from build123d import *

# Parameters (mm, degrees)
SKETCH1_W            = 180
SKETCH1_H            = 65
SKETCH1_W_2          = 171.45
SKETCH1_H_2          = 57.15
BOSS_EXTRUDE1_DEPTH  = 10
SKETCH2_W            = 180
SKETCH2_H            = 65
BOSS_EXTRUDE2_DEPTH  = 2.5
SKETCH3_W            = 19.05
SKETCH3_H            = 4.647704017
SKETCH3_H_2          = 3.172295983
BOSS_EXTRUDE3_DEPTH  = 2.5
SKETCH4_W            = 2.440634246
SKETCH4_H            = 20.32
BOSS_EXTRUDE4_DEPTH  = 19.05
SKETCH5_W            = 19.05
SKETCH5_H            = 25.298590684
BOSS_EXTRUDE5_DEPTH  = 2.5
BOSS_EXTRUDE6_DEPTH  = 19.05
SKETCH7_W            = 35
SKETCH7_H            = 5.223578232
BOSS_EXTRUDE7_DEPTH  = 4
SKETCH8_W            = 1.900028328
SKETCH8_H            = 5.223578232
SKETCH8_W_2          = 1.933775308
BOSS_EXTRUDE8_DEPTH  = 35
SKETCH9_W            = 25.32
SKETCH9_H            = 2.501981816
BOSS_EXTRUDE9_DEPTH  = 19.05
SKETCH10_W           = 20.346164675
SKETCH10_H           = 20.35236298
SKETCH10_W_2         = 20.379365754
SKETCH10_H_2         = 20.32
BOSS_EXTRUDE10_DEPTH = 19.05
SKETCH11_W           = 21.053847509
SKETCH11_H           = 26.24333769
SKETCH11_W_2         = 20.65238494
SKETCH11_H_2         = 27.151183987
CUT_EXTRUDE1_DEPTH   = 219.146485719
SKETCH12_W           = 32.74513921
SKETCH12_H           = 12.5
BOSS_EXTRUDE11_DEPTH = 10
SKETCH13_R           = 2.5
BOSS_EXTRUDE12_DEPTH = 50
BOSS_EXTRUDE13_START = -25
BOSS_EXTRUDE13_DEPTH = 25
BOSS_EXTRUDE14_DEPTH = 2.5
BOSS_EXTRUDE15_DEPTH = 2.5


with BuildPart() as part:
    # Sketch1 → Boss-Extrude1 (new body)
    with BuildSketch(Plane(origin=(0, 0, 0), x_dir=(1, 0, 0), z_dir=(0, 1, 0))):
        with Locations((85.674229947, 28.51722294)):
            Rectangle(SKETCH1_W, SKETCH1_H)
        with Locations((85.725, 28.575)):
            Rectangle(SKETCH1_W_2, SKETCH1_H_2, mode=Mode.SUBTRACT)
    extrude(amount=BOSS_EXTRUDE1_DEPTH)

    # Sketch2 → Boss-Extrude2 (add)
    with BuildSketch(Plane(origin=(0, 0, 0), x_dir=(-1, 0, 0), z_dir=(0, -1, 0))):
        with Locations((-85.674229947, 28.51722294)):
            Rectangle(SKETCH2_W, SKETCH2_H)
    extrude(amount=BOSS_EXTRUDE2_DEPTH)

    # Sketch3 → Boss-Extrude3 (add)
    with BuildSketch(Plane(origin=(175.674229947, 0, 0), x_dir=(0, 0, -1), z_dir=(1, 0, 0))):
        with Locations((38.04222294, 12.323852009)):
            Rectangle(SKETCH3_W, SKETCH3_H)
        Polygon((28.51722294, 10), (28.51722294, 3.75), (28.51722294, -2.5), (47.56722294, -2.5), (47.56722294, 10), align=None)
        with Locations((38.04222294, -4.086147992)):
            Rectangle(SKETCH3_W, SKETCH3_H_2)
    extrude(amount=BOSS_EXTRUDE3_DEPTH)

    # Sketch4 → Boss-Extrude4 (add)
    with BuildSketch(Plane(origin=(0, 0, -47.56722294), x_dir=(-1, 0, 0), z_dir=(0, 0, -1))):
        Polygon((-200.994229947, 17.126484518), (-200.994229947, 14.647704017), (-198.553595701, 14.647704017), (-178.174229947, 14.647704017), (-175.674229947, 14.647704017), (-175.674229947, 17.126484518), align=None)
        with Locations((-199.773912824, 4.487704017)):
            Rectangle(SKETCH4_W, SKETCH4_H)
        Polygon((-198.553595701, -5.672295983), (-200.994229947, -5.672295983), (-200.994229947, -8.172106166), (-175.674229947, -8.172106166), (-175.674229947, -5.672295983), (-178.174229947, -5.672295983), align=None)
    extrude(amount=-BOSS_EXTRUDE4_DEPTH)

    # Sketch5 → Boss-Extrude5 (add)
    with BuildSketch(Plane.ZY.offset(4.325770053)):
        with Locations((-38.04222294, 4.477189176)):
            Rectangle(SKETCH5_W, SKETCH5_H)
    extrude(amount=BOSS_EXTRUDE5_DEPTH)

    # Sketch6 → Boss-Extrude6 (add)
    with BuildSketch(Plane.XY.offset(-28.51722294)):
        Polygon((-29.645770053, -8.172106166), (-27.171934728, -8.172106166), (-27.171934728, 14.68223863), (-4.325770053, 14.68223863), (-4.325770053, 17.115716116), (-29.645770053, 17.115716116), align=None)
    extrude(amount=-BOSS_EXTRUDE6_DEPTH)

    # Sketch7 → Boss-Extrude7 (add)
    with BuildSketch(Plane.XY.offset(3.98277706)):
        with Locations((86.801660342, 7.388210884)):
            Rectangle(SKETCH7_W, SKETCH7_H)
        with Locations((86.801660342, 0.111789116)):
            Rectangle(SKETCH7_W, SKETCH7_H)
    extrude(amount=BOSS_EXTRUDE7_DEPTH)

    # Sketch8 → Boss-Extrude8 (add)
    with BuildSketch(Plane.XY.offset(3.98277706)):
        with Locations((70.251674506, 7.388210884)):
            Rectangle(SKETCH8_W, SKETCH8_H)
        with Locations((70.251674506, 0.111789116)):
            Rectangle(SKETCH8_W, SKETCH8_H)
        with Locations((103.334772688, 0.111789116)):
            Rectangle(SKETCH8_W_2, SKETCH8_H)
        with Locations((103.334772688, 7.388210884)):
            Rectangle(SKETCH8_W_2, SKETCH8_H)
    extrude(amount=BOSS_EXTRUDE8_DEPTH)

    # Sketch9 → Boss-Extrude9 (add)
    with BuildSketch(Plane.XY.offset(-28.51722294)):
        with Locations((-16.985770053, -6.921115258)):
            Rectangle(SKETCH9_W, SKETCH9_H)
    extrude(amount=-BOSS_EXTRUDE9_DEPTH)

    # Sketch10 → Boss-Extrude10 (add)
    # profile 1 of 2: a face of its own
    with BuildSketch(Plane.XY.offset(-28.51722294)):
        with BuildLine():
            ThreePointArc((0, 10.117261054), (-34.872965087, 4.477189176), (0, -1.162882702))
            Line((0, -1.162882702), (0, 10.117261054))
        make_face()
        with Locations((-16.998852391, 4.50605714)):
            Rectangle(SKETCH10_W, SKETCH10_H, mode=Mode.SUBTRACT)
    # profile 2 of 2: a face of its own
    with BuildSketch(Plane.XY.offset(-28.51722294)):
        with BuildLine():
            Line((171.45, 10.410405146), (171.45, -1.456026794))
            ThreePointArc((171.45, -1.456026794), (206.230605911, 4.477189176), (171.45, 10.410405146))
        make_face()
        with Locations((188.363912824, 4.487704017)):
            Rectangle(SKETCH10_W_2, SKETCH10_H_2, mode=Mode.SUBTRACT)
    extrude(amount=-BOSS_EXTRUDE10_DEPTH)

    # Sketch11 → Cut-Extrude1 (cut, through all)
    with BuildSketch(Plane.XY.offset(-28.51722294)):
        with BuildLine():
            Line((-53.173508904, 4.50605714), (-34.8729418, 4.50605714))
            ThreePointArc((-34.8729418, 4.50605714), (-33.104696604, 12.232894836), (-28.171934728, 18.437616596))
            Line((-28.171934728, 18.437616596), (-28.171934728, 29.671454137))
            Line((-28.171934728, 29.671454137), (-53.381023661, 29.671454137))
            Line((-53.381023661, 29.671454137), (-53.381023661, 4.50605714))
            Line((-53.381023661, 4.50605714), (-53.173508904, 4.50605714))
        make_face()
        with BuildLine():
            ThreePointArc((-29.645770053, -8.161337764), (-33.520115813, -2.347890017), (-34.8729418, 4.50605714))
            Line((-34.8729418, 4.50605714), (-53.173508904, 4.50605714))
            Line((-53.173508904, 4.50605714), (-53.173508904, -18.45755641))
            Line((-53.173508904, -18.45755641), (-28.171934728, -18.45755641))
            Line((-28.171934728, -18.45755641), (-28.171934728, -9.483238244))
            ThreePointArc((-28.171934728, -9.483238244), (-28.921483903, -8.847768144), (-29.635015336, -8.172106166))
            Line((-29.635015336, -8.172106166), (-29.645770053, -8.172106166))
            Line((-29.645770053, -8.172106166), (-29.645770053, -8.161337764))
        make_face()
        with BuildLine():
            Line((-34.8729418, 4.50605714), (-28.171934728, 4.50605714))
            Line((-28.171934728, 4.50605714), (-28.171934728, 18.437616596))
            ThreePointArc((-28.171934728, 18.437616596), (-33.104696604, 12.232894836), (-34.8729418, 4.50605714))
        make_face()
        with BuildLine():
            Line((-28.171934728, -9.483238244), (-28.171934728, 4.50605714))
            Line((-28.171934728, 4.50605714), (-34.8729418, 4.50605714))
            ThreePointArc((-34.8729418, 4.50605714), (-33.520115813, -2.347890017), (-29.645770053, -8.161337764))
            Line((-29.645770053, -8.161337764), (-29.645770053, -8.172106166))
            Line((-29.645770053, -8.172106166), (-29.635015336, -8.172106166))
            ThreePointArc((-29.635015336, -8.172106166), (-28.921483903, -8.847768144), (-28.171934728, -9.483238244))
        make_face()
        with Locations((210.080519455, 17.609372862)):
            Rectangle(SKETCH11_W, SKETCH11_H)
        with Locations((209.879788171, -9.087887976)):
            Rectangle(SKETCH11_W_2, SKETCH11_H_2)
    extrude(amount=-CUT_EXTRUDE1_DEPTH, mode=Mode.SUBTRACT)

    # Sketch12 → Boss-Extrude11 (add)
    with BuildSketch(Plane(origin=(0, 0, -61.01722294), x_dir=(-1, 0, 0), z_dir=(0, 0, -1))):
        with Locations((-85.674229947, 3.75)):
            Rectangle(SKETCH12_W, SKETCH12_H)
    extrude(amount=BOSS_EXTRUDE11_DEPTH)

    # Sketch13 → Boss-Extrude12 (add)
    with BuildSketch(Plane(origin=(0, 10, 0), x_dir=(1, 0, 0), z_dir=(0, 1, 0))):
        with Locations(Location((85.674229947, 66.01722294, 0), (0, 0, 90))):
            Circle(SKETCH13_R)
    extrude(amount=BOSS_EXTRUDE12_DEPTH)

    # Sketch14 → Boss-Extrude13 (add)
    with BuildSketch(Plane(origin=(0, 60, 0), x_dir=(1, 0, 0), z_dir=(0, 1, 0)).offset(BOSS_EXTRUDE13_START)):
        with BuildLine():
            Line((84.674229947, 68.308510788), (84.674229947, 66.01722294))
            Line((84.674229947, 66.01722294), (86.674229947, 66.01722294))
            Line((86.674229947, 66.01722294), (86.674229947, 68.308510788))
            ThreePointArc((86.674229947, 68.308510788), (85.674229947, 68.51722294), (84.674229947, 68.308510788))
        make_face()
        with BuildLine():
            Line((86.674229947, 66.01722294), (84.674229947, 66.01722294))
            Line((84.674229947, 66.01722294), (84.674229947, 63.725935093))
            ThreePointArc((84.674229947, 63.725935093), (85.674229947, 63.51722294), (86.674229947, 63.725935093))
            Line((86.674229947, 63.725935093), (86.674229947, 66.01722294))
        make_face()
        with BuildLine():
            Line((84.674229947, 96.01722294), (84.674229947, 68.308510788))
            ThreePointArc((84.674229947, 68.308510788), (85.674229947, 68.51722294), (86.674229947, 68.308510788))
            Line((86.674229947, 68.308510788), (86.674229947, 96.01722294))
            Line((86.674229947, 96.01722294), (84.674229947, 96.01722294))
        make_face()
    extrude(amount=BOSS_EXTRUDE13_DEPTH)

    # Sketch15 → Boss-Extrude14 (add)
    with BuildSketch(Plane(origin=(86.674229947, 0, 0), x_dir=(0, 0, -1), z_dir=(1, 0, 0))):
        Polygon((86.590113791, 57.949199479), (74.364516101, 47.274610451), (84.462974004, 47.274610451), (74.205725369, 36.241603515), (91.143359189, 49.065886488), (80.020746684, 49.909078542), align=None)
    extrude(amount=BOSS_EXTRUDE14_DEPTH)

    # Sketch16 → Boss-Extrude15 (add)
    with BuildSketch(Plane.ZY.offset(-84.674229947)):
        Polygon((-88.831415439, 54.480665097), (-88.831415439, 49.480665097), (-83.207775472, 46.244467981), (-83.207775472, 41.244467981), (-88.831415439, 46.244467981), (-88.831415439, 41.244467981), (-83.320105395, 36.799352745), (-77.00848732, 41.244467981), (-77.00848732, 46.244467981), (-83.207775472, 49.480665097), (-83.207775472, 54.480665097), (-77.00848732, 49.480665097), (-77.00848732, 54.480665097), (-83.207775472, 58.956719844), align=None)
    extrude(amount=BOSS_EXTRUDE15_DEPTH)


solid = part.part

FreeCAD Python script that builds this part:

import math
import FreeCAD as App
import Part
import Sketcher
Q = App.Units.Quantity

doc = App.newDocument("Part")
body = doc.addObject("PartDesign::Body", "Body")

# Sketch on XZ plane
sketch1 = body.newObject("Sketcher::SketchObject", "Sketch")
sketch1.AttachmentSupport = (doc.getObject("XZ_Plane"), [""])
sketch1.MapMode = "FlatFace"
sketch1.addGeometry([
    Part.LineSegment(App.Vector(-4, -61, 0), App.Vector(-4, 4, 0)),  # 0
    Part.LineSegment(App.Vector(-4, 4, 0), App.Vector(176, 4, 0)),  # 1
    Part.LineSegment(App.Vector(176, 4, 0), App.Vector(176, -61, 0)),  # 2
    Part.LineSegment(App.Vector(176, -61, 0), App.Vector(-4, -61, 0)),  # 3
    Part.LineSegment(App.Vector(171, 0, 0), App.Vector(0, 0, 0)),  # 4
    Part.LineSegment(App.Vector(0, 0, 0), App.Vector(0, -57, 0)),  # 5
    Part.LineSegment(App.Vector(0, -57, 0), App.Vector(171, -57, 0)),  # 6
    Part.LineSegment(App.Vector(171, -57, 0), App.Vector(171, 0, 0)),  # 7
], False)
sketch1.addConstraint([
    Sketcher.Constraint("Coincident", 0, 2, 1, 1),
    Sketcher.Constraint("Coincident", 1, 2, 2, 1),
    Sketcher.Constraint("Coincident", 2, 2, 3, 1),
    Sketcher.Constraint("Coincident", 3, 2, 0, 1),
    Sketcher.Constraint("Coincident", 4, 2, 5, 1),
    Sketcher.Constraint("Coincident", 5, 2, 6, 1),
    Sketcher.Constraint("Coincident", 6, 2, 7, 1),
    Sketcher.Constraint("Coincident", 7, 2, 4, 1),
    Sketcher.Constraint("Vertical", 0),
    Sketcher.Constraint("Horizontal", 1),
    Sketcher.Constraint("Vertical", 2),
    Sketcher.Constraint("Horizontal", 3),
    Sketcher.Constraint("Horizontal", 4),
    Sketcher.Constraint("Vertical", 5),
    Sketcher.Constraint("Horizontal", 6),
    Sketcher.Constraint("Vertical", 7),
    Sketcher.Constraint("Coincident", 4, 2, -1, 1),
    Sketcher.Constraint("DistanceX", 1, 1, 1, 2, Q("180 mm")),
    Sketcher.Constraint("DistanceY", 0, 1, 0, 2, Q("65 mm")),
    Sketcher.Constraint("DistanceX", 4, 2, 4, 1, Q("171.45 mm")),
    Sketcher.Constraint("DistanceY", 5, 2, 5, 1, Q("57.15 mm")),
    Sketcher.Constraint("DistanceX", 0, 2, -1, 1, Q("4.32577 mm")),
    Sketcher.Constraint("DistanceY", -1, 1, 0, 2, Q("3.982777 mm")),
])
pad1 = body.newObject("PartDesign::Pad", "Pad")
pad1.Profile = sketch1
pad1.Length = 10
pad1.Reversed = True

# Sketch on XZ plane
sketch2 = body.newObject("Sketcher::SketchObject", "Sketch001")
sketch2.AttachmentSupport = (doc.getObject("XZ_Plane"), [""])
sketch2.MapMode = "FlatFace"
sketch2.addGeometry([
    Part.LineSegment(App.Vector(176, -61, 0), App.Vector(176, 4, 0)),
    Part.LineSegment(App.Vector(176, 4, 0), App.Vector(-4, 4, 0)),
    Part.LineSegment(App.Vector(-4, 4, 0), App.Vector(-4, -61, 0)),
    Part.LineSegment(App.Vector(-4, -61, 0), App.Vector(176, -61, 0)),
], False)
sketch2.addConstraint([
    Sketcher.Constraint("Coincident", 0, 2, 1, 1),
    Sketcher.Constraint("Coincident", 1, 2, 2, 1),
    Sketcher.Constraint("Coincident", 2, 2, 3, 1),
    Sketcher.Constraint("Coincident", 3, 2, 0, 1),
    Sketcher.Constraint("Vertical", 0),
    Sketcher.Constraint("Horizontal", 1),
    Sketcher.Constraint("Vertical", 2),
    Sketcher.Constraint("Horizontal", 3),
    Sketcher.Constraint("DistanceX", 1, 2, 1, 1, Q("180 mm")),
    Sketcher.Constraint("DistanceY", 0, 1, 0, 2, Q("65 mm")),
    Sketcher.Constraint("DistanceX", -1, 1, 0, 2, Q("175.67423 mm")),
    Sketcher.Constraint("DistanceY", -1, 1, 0, 2, Q("3.982777 mm")),
])
pad2 = body.newObject("PartDesign::Pad", "Pad001")
pad2.Profile = sketch2
pad2.Length = 2.5

# Sketch on YZ plane
sketch3 = body.newObject("Sketcher::SketchObject", "Sketch002")
sketch3.AttachmentSupport = (doc.getObject("YZ_Plane"), [""])
sketch3.MapMode = "FlatFace"
sketch3.AttachmentOffset = App.Placement(App.Vector(0, 0, 175.67423), App.Rotation())
sketch3.addGeometry([
    Part.LineSegment(App.Vector(15, -29, 0), App.Vector(-6, -29, 0)),
    Part.LineSegment(App.Vector(-6, -29, 0), App.Vector(-6, -48, 0)),
    Part.LineSegment(App.Vector(-6, -48, 0), App.Vector(15, -48, 0)),
    Part.LineSegment(App.Vector(15, -48, 0), App.Vector(15, -29, 0)),
], False)
sketch3.addConstraint([
    Sketcher.Constraint("Coincident", 0, 2, 1, 1),
    Sketcher.Constraint("Coincident", 1, 2, 2, 1),
    Sketcher.Constraint("Coincident", 2, 2, 3, 1),
    Sketcher.Constraint("Coincident", 3, 2, 0, 1),
    Sketcher.Constraint("Horizontal", 0),
    Sketcher.Constraint("Vertical", 1),
    Sketcher.Constraint("Horizontal", 2),
    Sketcher.Constraint("Vertical", 3),
    Sketcher.Constraint("DistanceX", 0, 2, 0, 1, Q("20.32 mm")),
    Sketcher.Constraint("DistanceY", 1, 2, 1, 1, Q("19.05 mm")),
    Sketcher.Constraint("DistanceX", 0, 2, -1, 1, Q("5.672296 mm")),
    Sketcher.Constraint("DistanceY", 0, 2, -1, 1, Q("28.517223 mm")),
])
pad3 = body.newObject("PartDesign::Pad", "Pad002")
pad3.Profile = sketch3
pad3.Length = 2.5

# Sketch on XY plane
sketch4 = body.newObject("Sketcher::SketchObject", "Sketch003")
sketch4.AttachmentSupport = (doc.getObject("XY_Plane"), [""])
sketch4.MapMode = "FlatFace"
sketch4.AttachmentOffset = App.Placement(App.Vector(0, 0, -47.567223), App.Rotation())
sketch4.addGeometry([
    Part.LineSegment(App.Vector(201, 17.1, 0), App.Vector(201, -8.2, 0)),  # 0
    Part.LineSegment(App.Vector(201, -8.2, 0), App.Vector(175.7, -8.2, 0)),  # 1
    Part.LineSegment(App.Vector(175.7, -8.2, 0), App.Vector(175.7, -5.7, 0)),  # 2
    Part.LineSegment(App.Vector(175.7, -5.7, 0), App.Vector(198.6, -5.7, 0)),  # 3
    Part.LineSegment(App.Vector(198.6, -5.7, 0), App.Vector(198.6, 14.6, 0)),  # 4
    Part.LineSegment(App.Vector(198.6, 14.6, 0), App.Vector(175.7, 14.6, 0)),  # 5
    Part.LineSegment(App.Vector(175.7, 14.6, 0), App.Vector(175.7, 17.1, 0)),  # 6
    Part.LineSegment(App.Vector(175.7, 17.1, 0), App.Vector(201, 17.1, 0)),  # 7
], False)
sketch4.addConstraint([
    Sketcher.Constraint("Coincident", 0, 2, 1, 1),
    Sketcher.Constraint("Coincident", 1, 2, 2, 1),
    Sketcher.Constraint("Coincident", 2, 2, 3, 1),
    Sketcher.Constraint("Coincident", 3, 2, 4, 1),
    Sketcher.Constraint("Coincident", 4, 2, 5, 1),
    Sketcher.Constraint("Coincident", 5, 2, 6, 1),
    Sketcher.Constraint("Coincident", 6, 2, 7, 1),
    Sketcher.Constraint("Coincident", 7, 2, 0, 1),
    Sketcher.Constraint("Vertical", 0),
    Sketcher.Constraint("Horizontal", 1),
    Sketcher.Constraint("Vertical", 2),
    Sketcher.Constraint("Horizontal", 3),
    Sketcher.Constraint("Vertical", 4),
    Sketcher.Constraint("Horizontal", 5),
    Sketcher.Constraint("Vertical", 6),
    Sketcher.Constraint("Horizontal", 7),
    Sketcher.Constraint("Vertical", 2, 2, 5, 2),
    Sketcher.Constraint("DistanceX", 1, 2, 1, 1, Q("25.32 mm")),
    Sketcher.Constraint("DistanceY", 4, 1, 4, 2, Q("20.32 mm")),
    Sketcher.Constraint("DistanceY", 0, 2, 0, 1, Q("25.298591 mm")),
    Sketcher.Constraint("DistanceY", 2, 1, 2, 2, Q("2.49981 mm")),
    Sketcher.Constraint("DistanceX", 3, 1, 3, 2, Q("22.879366 mm")),
    Sketcher.Constraint("DistanceX", -1, 1, 0, 2, Q("200.99423 mm")),
    Sketcher.Constraint("DistanceY", 0, 2, -1, 1, Q("8.172106 mm")),
])
pad4 = body.newObject("PartDesign::Pad", "Pad003")
pad4.Profile = sketch4
pad4.Length = 19.05

# Sketch on YZ plane
sketch5 = body.newObject("Sketcher::SketchObject", "Sketch004")
sketch5.AttachmentSupport = (doc.getObject("YZ_Plane"), [""])
sketch5.MapMode = "FlatFace"
sketch5.AttachmentOffset = App.Placement(App.Vector(0, 0, -4.32577), App.Rotation())
sketch5.addGeometry([
    Part.LineSegment(App.Vector(17, -48, 0), App.Vector(-8, -48, 0)),
    Part.LineSegment(App.Vector(-8, -48, 0), App.Vector(-8, -29, 0)),
    Part.LineSegment(App.Vector(-8, -29, 0), App.Vector(17, -29, 0)),
    Part.LineSegment(App.Vector(17, -29, 0), App.Vector(17, -48, 0)),
], False)
sketch5.addConstraint([
    Sketcher.Constraint("Coincident", 0, 2, 1, 1),
    Sketcher.Constraint("Coincident", 1, 2, 2, 1),
    Sketcher.Constraint("Coincident", 2, 2, 3, 1),
    Sketcher.Constraint("Coincident", 3, 2, 0, 1),
    Sketcher.Constraint("Horizontal", 0),
    Sketcher.Constraint("Vertical", 1),
    Sketcher.Constraint("Horizontal", 2),
    Sketcher.Constraint("Vertical", 3),
    Sketcher.Constraint("DistanceY", 1, 1, 1, 2, Q("19.05 mm")),
    Sketcher.Constraint("DistanceX", 0, 2, 0, 1, Q("25.298591 mm")),
    Sketcher.Constraint("DistanceX", 0, 2, -1, 1, Q("8.172106 mm")),
    Sketcher.Constraint("DistanceY", 0, 2, -1, 1, Q("47.567223 mm")),
])
pad5 = body.newObject("PartDesign::Pad", "Pad004")
pad5.Profile = sketch5
pad5.Length = 2.5
pad5.Reversed = True

# Sketch on XY plane
sketch6 = body.newObject("Sketcher::SketchObject", "Sketch005")
sketch6.AttachmentSupport = (doc.getObject("XY_Plane"), [""])
sketch6.MapMode = "FlatFace"
sketch6.AttachmentOffset = App.Placement(App.Vector(0, 0, -28.517223), App.Rotation())
sketch6.addGeometry([
    Part.LineSegment(App.Vector(-29.6, -8.2, 0), App.Vector(-27.2, -8.2, 0)),  # 0
    Part.LineSegment(App.Vector(-27.2, -8.2, 0), App.Vector(-27.2, 14.7, 0)),  # 1
    Part.LineSegment(App.Vector(-27.2, 14.7, 0), App.Vector(-4.3, 14.7, 0)),  # 2
    Part.LineSegment(App.Vector(-4.3, 14.7, 0), App.Vector(-4.3, 17.1, 0)),  # 3
    Part.LineSegment(App.Vector(-4.3, 17.1, 0), App.Vector(-29.6, 17.1, 0)),  # 4
    Part.LineSegment(App.Vector(-29.6, 17.1, 0), App.Vector(-29.6, -8.2, 0)),  # 5
], False)
sketch6.addConstraint([
    Sketcher.Constraint("Coincident", 0, 2, 1, 1),
    Sketcher.Constraint("Coincident", 1, 2, 2, 1),
    Sketcher.Constraint("Coincident", 2, 2, 3, 1),
    Sketcher.Constraint("Coincident", 3, 2, 4, 1),
    Sketcher.Constraint("Coincident", 4, 2, 5, 1),
    Sketcher.Constraint("Coincident", 5, 2, 0, 1),
    Sketcher.Constraint("Horizontal", 0),
    Sketcher.Constraint("Vertical", 1),
    Sketcher.Constraint("Horizontal", 2),
    Sketcher.Constraint("Vertical", 3),
    Sketcher.Constraint("Horizontal", 4),
    Sketcher.Constraint("Vertical", 5),
    Sketcher.Constraint("DistanceX", 4, 2, 4, 1, Q("25.32 mm")),
    Sketcher.Constraint("DistanceX", 0, 1, 0, 2, Q("2.473835 mm")),
    Sketcher.Constraint("DistanceY", 1, 1, 1, 2, Q("22.854345 mm")),
    Sketcher.Constraint("DistanceY", 3, 1, 3, 2, Q("2.433477 mm")),
    Sketcher.Constraint("DistanceY", -1, 1, 1, 2, Q("14.682239 mm")),
    Sketcher.Constraint("DistanceX", 2, 2, -1, 1, Q("4.32577 mm")),
])
pad6 = body.newObject("PartDesign::Pad", "Pad005")
pad6.Profile = sketch6
pad6.Length = 19.05
pad6.Reversed = True

# Sketch on XY plane
sketch7 = body.newObject("Sketcher::SketchObject", "Sketch006")
sketch7.AttachmentSupport = (doc.getObject("XY_Plane"), [""])
sketch7.MapMode = "FlatFace"
sketch7.AttachmentOffset = App.Placement(App.Vector(0, 0, 3.982777), App.Rotation())
sketch7.addGeometry([
    Part.LineSegment(App.Vector(69, 10, 0), App.Vector(69, 5, 0)),  # 0
    Part.LineSegment(App.Vector(69, 5, 0), App.Vector(104, 5, 0)),  # 1
    Part.LineSegment(App.Vector(104, 5, 0), App.Vector(104, 10, 0)),  # 2
    Part.LineSegment(App.Vector(104, 10, 0), App.Vector(69, 10, 0)),  # 3
    Part.LineSegment(App.Vector(69, 3, 0), App.Vector(69, -2, 0)),  # 4
    Part.LineSegment(App.Vector(69, -2, 0), App.Vector(104, -2, 0)),  # 5
    Part.LineSegment(App.Vector(104, -2, 0), App.Vector(104, 3, 0)),  # 6
    Part.LineSegment(App.Vector(104, 3, 0), App.Vector(69, 3, 0)),  # 7
], False)
sketch7.addConstraint([
    Sketcher.Constraint("Coincident", 0, 2, 1, 1),
    Sketcher.Constraint("Coincident", 1, 2, 2, 1),
    Sketcher.Constraint("Coincident", 2, 2, 3, 1),
    Sketcher.Constraint("Coincident", 3, 2, 0, 1),
    Sketcher.Constraint("Coincident", 4, 2, 5, 1),
    Sketcher.Constraint("Coincident", 5, 2, 6, 1),
    Sketcher.Constraint("Coincident", 6, 2, 7, 1),
    Sketcher.Constraint("Coincident", 7, 2, 4, 1),
    Sketcher.Constraint("Vertical", 0),
    Sketcher.Constraint("Horizontal", 1),
    Sketcher.Constraint("Vertical", 2),
    Sketcher.Constraint("Horizontal", 3),
    Sketcher.Constraint("Vertical", 4),
    Sketcher.Constraint("Horizontal", 5),
    Sketcher.Constraint("Vertical", 6),
    Sketcher.Constraint("Horizontal", 7),
    Sketcher.Constraint("Vertical", 3, 2, 4, 2),
    Sketcher.Constraint("Vertical", 2, 2, 5, 2),
    Sketcher.Constraint("Equal", 2, 4),
    Sketcher.Constraint("DistanceX", 1, 1, 1, 2, Q("35 mm")),
    Sketcher.Constraint("DistanceY", -1, 1, 2, 2, Q("10 mm")),
    Sketcher.Constraint("DistanceY", 4, 2, -1, 1, Q("2.5 mm")),
    Sketcher.Constraint("DistanceY", 0, 2, 0, 1, Q("5.223578 mm")),
    Sketcher.Constraint("DistanceX", -1, 1, 0, 2, Q("69.30166 mm")),
])
pad7 = body.newObject("PartDesign::Pad", "Pad006")
pad7.Profile = sketch7
pad7.Length = 4

# Sketch on XY plane
sketch8 = body.newObject("Sketcher::SketchObject", "Sketch007")
sketch8.AttachmentSupport = (doc.getObject("XY_Plane"), [""])
sketch8.MapMode = "FlatFace"
sketch8.AttachmentOffset = App.Placement(App.Vector(0, 0, 3.982777), App.Rotation())
sketch8.addGeometry([
    Part.LineSegment(App.Vector(69.3, 10, 0), App.Vector(69.3, 4.8, 0)),  # 0
    Part.LineSegment(App.Vector(69.3, 4.8, 0), App.Vector(71.2, 4.8, 0)),  # 1
    Part.LineSegment(App.Vector(71.2, 4.8, 0), App.Vector(71.2, 10, 0)),  # 2
    Part.LineSegment(App.Vector(71.2, 10, 0), App.Vector(69.3, 10, 0)),  # 3
    Part.LineSegment(App.Vector(69.3, 2.7, 0), App.Vector(69.3, -2.5, 0)),  # 4
    Part.LineSegment(App.Vector(69.3, -2.5, 0), App.Vector(71.2, -2.5, 0)),  # 5
    Part.LineSegment(App.Vector(71.2, -2.5, 0), App.Vector(71.2, 2.7, 0)),  # 6
    Part.LineSegment(App.Vector(71.2, 2.7, 0), App.Vector(69.3, 2.7, 0)),  # 7
    Part.LineSegment(App.Vector(102.4, 2.7, 0), App.Vector(102.4, -2.5, 0)),  # 8
    Part.LineSegment(App.Vector(102.4, -2.5, 0), App.Vector(104.3, -2.5, 0)),  # 9
    Part.LineSegment(App.Vector(104.3, -2.5, 0), App.Vector(104.3, 2.7, 0)),  # 10
    Part.LineSegment(App.Vector(104.3, 2.7, 0), App.Vector(102.4, 2.7, 0)),  # 11
    Part.LineSegment(App.Vector(102.4, 10, 0), App.Vector(102.4, 4.8, 0)),  # 12
    Part.LineSegment(App.Vector(102.4, 4.8, 0), App.Vector(104.3, 4.8, 0)),  # 13
    Part.LineSegment(App.Vector(104.3, 4.8, 0), App.Vector(104.3, 10, 0)),  # 14
    Part.LineSegment(App.Vector(104.3, 10, 0), App.Vector(102.4, 10, 0)),  # 15
], False)
sketch8.addConstraint([
    Sketcher.Constraint("Coincident", 0, 2, 1, 1),
    Sketcher.Constraint("Coincident", 1, 2, 2, 1),
    Sketcher.Constraint("Coincident", 2, 2, 3, 1),
    Sketcher.Constraint("Coincident", 3, 2, 0, 1),
    Sketcher.Constraint("Coincident", 4, 2, 5, 1),
    Sketcher.Constraint("Coincident", 5, 2, 6, 1),
    Sketcher.Constraint("Coincident", 6, 2, 7, 1),
    Sketcher.Constraint("Coincident", 7, 2, 4, 1),
    Sketcher.Constraint("Coincident", 8, 2, 9, 1),
    Sketcher.Constraint("Coincident", 9, 2, 10, 1),
    Sketcher.Constraint("Coincident", 10, 2, 11, 1),
    Sketcher.Constraint("Coincident", 11, 2, 8, 1),
    Sketcher.Constraint("Coincident", 12, 2, 13, 1),
    Sketcher.Constraint("Coincident", 13, 2, 14, 1),
    Sketcher.Constraint("Coincident", 14, 2, 15, 1),
    Sketcher.Constraint("Coincident", 15, 2, 12, 1),
    Sketcher.Constraint("Vertical", 0),
    Sketcher.Constraint("Horizontal", 1),
    Sketcher.Constraint("Vertical", 2),
    Sketcher.Constraint("Horizontal", 3),
    Sketcher.Constraint("Vertical", 4),
    Sketcher.Constraint("Horizontal", 5),
    Sketcher.Constraint("Vertical", 6),
    Sketcher.Constraint("Horizontal", 7),
    Sketcher.Constraint("Vertical", 8),
    Sketcher.Constraint("Horizontal", 9),
    Sketcher.Constraint("Vertical", 10),
    Sketcher.Constraint("Horizontal", 11),
    Sketcher.Constraint("Vertical", 12),
    Sketcher.Constraint("Horizontal", 13),
    Sketcher.Constraint("Vertical", 14),
    Sketcher.Constraint("Horizontal", 15),
    Sketcher.Constraint("Horizontal", 5, 2, 8, 2),
    Sketcher.Constraint("Horizontal", 7, 2, 10, 2),
    Sketcher.Constraint("Horizontal", 1, 2, 12, 2),
    Sketcher.Constraint("Horizontal", 3, 2, 14, 2),
    Sketcher.Constraint("Vertical", 3, 2, 4, 2),
    Sketcher.Constraint("Vertical", 2, 2, 5, 2),
    Sketcher.Constraint("Vertical", 11, 2, 12, 2),
    Sketcher.Constraint("Vertical", 10, 2, 13, 2),
    Sketcher.Constraint("Equal", 2, 4),
    Sketcher.Constraint("DistanceY", -1, 1, 2, 2, Q("10 mm")),
    Sketcher.Constraint("DistanceX", 4, 2, 9, 2, Q("35 mm")),
    Sketcher.Constraint("DistanceY", 4, 2, -1, 1, Q("2.5 mm")),
    Sketcher.Constraint("DistanceX", 1, 1, 1, 2, Q("1.900028 mm")),
    Sketcher.Constraint("DistanceY", 0, 2, 0, 1, Q("5.223578 mm")),
    Sketcher.Constraint("DistanceX", 9, 1, 9, 2, Q("1.933775 mm")),
    Sketcher.Constraint("DistanceX", -1, 1, 0, 2, Q("69.30166 mm")),
])
pad8 = body.newObject("PartDesign::Pad", "Pad007")
pad8.Profile = sketch8
pad8.Length = 35

# Sketch on XY plane
sketch9 = body.newObject("Sketcher::SketchObject", "Sketch008")
sketch9.AttachmentSupport = (doc.getObject("XY_Plane"), [""])
sketch9.MapMode = "FlatFace"
sketch9.AttachmentOffset = App.Placement(App.Vector(0, 0, -28.517223), App.Rotation())
sketch9.addGeometry([
    Part.LineSegment(App.Vector(-29.6, -5.7, 0), App.Vector(-29.6, -8.2, 0)),
    Part.LineSegment(App.Vector(-29.6, -8.2, 0), App.Vector(-4.3, -8.2, 0)),
    Part.LineSegment(App.Vector(-4.3, -8.2, 0), App.Vector(-4.3, -5.7, 0)),
    Part.LineSegment(App.Vector(-4.3, -5.7, 0), App.Vector(-29.6, -5.7, 0)),
], False)
sketch9.addConstraint([
    Sketcher.Constraint("Coincident", 0, 2, 1, 1),
    Sketcher.Constraint("Coincident", 1, 2, 2, 1),
    Sketcher.Constraint("Coincident", 2, 2, 3, 1),
    Sketcher.Constraint("Coincident", 3, 2, 0, 1),
    Sketcher.Constraint("Vertical", 0),
    Sketcher.Constraint("Horizontal", 1),
    Sketcher.Constraint("Vertical", 2),
    Sketcher.Constraint("Horizontal", 3),
    Sketcher.Constraint("DistanceX", 1, 1, 1, 2, Q("25.32 mm")),
    Sketcher.Constraint("DistanceY", 0, 2, 0, 1, Q("2.501982 mm")),
    Sketcher.Constraint("DistanceX", 0, 2, -1, 1, Q("29.64577 mm")),
    Sketcher.Constraint("DistanceY", 0, 2, -1, 1, Q("8.172106 mm")),
])
pad9 = body.newObject("PartDesign::Pad", "Pad008")
pad9.Profile = sketch9
pad9.Length = 19.05
pad9.Reversed = True

# Sketch on XY plane
sketch10 = body.newObject("Sketcher::SketchObject", "Sketch009")
sketch10.AttachmentSupport = (doc.getObject("XY_Plane"), [""])
sketch10.MapMode = "FlatFace"
sketch10.AttachmentOffset = App.Placement(App.Vector(0, 0, -28.517223), App.Rotation())
sketch10.addGeometry([
    Part.ArcOfCircle(Part.Circle(App.Vector(-17, 4, 0), App.Vector(0, 0, 1), 18), math.radians(18), math.radians(342)),  # 0
    Part.LineSegment(App.Vector(0, -1, 0), App.Vector(0, 10, 0)),  # 1
    Part.LineSegment(App.Vector(-7, -6, 0), App.Vector(-27, -6, 0)),  # 2
    Part.LineSegment(App.Vector(-27, -6, 0), App.Vector(-27, 15, 0)),  # 3
    Part.LineSegment(App.Vector(-27, 15, 0), App.Vector(-7, 15, 0)),  # 4
    Part.LineSegment(App.Vector(-7, 15, 0), App.Vector(-7, -6, 0)),  # 5
    Part.LineSegment(App.Vector(171, 10, 0), App.Vector(171, -1, 0)),  # 6
    Part.ArcOfCircle(Part.Circle(App.Vector(188, 4, 0), App.Vector(0, 0, 1), 18), math.radians(-161), math.radians(161)),  # 7
    Part.LineSegment(App.Vector(199, -6, 0), App.Vector(178, -6, 0)),  # 8
    Part.LineSegment(App.Vector(178, -6, 0), App.Vector(178, 15, 0)),  # 9
    Part.LineSegment(App.Vector(178, 15, 0), App.Vector(199, 15, 0)),  # 10
    Part.LineSegment(App.Vector(199, 15, 0), App.Vector(199, -6, 0)),  # 11
], False)
sketch10.addConstraint([
    Sketcher.Constraint("Coincident", 0, 1, 1, 2),
    Sketcher.Constraint("Coincident", 1, 1, 0, 2),
    Sketcher.Constraint("Coincident", 2, 2, 3, 1),
    Sketcher.Constraint("Coincident", 3, 2, 4, 1),
    Sketcher.Constraint("Coincident", 4, 2, 5, 1),
    Sketcher.Constraint("Coincident", 5, 2, 2, 1),
    Sketcher.Constraint("Coincident", 6, 1, 7, 2),
    Sketcher.Constraint("Coincident", 7, 1, 6, 2),
    Sketcher.Constraint("Coincident", 8, 2, 9, 1),
    Sketcher.Constraint("Coincident", 9, 2, 10, 1),
    Sketcher.Constraint("Coincident", 10, 2, 11, 1),
    Sketcher.Constraint("Coincident", 11, 2, 8, 1),
    Sketcher.Constraint("Vertical", 1),
    Sketcher.Constraint("Horizontal", 2),
    Sketcher.Constraint("Vertical", 3),
    Sketcher.Constraint("Horizontal", 4),
    Sketcher.Constraint("Vertical", 5),
    Sketcher.Constraint("Vertical", 6),
    Sketcher.Constraint("Horizontal", 8),
    Sketcher.Constraint("Vertical", 9),
    Sketcher.Constraint("Horizontal", 10),
    Sketcher.Constraint("Vertical", 11),
    Sketcher.Constraint("PointOnObject", 0, 1, -2),
    Sketcher.Constraint("Horizontal", 0, 3, 7, 3),
    Sketcher.Constraint("DistanceY", 9, 1, 9, 2, Q("20.32 mm")),
    Sketcher.Constraint("DistanceX", -1, 1, 6, 1, Q("171.45 mm")),
    Sketcher.Constraint("DistanceX", 8, 2, 7, 3, Q("10.16 mm")),
    Sketcher.Constraint("Radius", 0, Q("17.892572 mm")),
    Sketcher.Constraint("Radius", 7, Q("17.896376 mm")),
    Sketcher.Constraint("DistanceY", 6, 2, 6, 1, Q("11.866432 mm")),
    Sketcher.Constraint("DistanceY", 8, 2, 6, 1, Q("16.082701 mm")),
    Sketcher.Constraint("DistanceX", 2, 2, 2, 1, Q("20.346165 mm")),
    Sketcher.Constraint("DistanceX", 8, 2, 8, 1, Q("20.379366 mm")),
    Sketcher.Constraint("DistanceY", 1, 1, 1, 2, Q("11.280144 mm")),
    Sketcher.Constraint("DistanceY", 3, 1, 3, 2, Q("20.352363 mm")),
    Sketcher.Constraint("DistanceY", -1, 1, 0, 3, Q("4.477189 mm")),
    Sketcher.Constraint("DistanceY", -1, 1, 3, 2, Q("14.682239 mm")),
    Sketcher.Constraint("DistanceX", 4, 2, -1, 1, Q("6.82577 mm")),
])
pad10 = body.newObject("PartDesign::Pad", "Pad009")
pad10.Profile = sketch10
pad10.Length = 19.05
pad10.Reversed = True

# Sketch on XY plane
sketch11 = body.newObject("Sketcher::SketchObject", "Sketch010")
sketch11.AttachmentSupport = (doc.getObject("XY_Plane"), [""])
sketch11.MapMode = "FlatFace"
sketch11.AttachmentOffset = App.Placement(App.Vector(0, 0, -28.517223), App.Rotation())
sketch11.addGeometry([
    Part.LineSegment(App.Vector(-28.17, 29.67, 0), App.Vector(-53.38, 29.67, 0)),  # 0
    Part.LineSegment(App.Vector(-53.38, 29.67, 0), App.Vector(-53.38, 4.51, 0)),  # 1
    Part.LineSegment(App.Vector(-53.38, 4.51, 0), App.Vector(-53.17, 4.51, 0)),  # 2
    Part.LineSegment(App.Vector(-53.17, 4.51, 0), App.Vector(-53.17, -18.46, 0)),  # 3
    Part.LineSegment(App.Vector(-53.17, -18.46, 0), App.Vector(-28.17, -18.46, 0)),  # 4
    Part.LineSegment(App.Vector(-28.17, -18.46, 0), App.Vector(-28.17, 29.67, 0)),  # 5
    Part.LineSegment(App.Vector(199.55, 30.73, 0), App.Vector(199.55, -22.66, 0)),  # 6
    Part.LineSegment(App.Vector(199.55, -22.66, 0), App.Vector(220.21, -22.66, 0)),  # 7
    Part.LineSegment(App.Vector(220.21, -22.66, 0), App.Vector(220.21, 4.49, 0)),  # 8
    Part.LineSegment(App.Vector(220.21, 4.49, 0), App.Vector(220.61, 4.49, 0)),  # 9
    Part.LineSegment(App.Vector(220.61, 4.49, 0), App.Vector(220.61, 30.73, 0)),  # 10
    Part.LineSegment(App.Vector(220.61, 30.73, 0), App.Vector(199.55, 30.73, 0)),  # 11
], False)
sketch11.addConstraint([
    Sketcher.Constraint("Coincident", 0, 2, 1, 1),
    Sketcher.Constraint("Coincident", 1, 2, 2, 1),
    Sketcher.Constraint("Coincident", 2, 2, 3, 1),
    Sketcher.Constraint("Coincident", 3, 2, 4, 1),
    Sketcher.Constraint("Coincident", 4, 2, 5, 1),
    Sketcher.Constraint("Coincident", 5, 2, 0, 1),
    Sketcher.Constraint("Coincident", 6, 2, 7, 1),
    Sketcher.Constraint("Coincident", 7, 2, 8, 1),
    Sketcher.Constraint("Coincident", 8, 2, 9, 1),
    Sketcher.Constraint("Coincident", 9, 2, 10, 1),
    Sketcher.Constraint("Coincident", 10, 2, 11, 1),
    Sketcher.Constraint("Coincident", 11, 2, 6, 1),
    Sketcher.Constraint("Horizontal", 0),
    Sketcher.Constraint("Vertical", 1),
    Sketcher.Constraint("Horizontal", 2),
    Sketcher.Constraint("Vertical", 3),
    Sketcher.Constraint("Horizontal", 4),
    Sketcher.Constraint("Vertical", 5),
    Sketcher.Constraint("Vertical", 6),
    Sketcher.Constraint("Horizontal", 7),
    Sketcher.Constraint("Vertical", 8),
    Sketcher.Constraint("Horizontal", 9),
    Sketcher.Constraint("Vertical", 10),
    Sketcher.Constraint("Horizontal", 11),
    Sketcher.Constraint("DistanceX", 0, 2, 0, 1, Q("25.209089 mm")),
    Sketcher.Constraint("DistanceY", 5, 1, 5, 2, Q("48.129011 mm")),
    Sketcher.Constraint("DistanceY", 6, 2, 6, 1, Q("53.394522 mm")),
    Sketcher.Constraint("DistanceX", 2, 1, 2, 2, Q("0.207515 mm")),
    Sketcher.Constraint("DistanceX", 7, 1, 7, 2, Q("20.652385 mm")),
    Sketcher.Constraint("DistanceX", 9, 1, 9, 2, Q("0.401463 mm")),
    Sketcher.Constraint("DistanceY", 1, 2, 1, 1, Q("25.165397 mm")),
    Sketcher.Constraint("DistanceY", 8, 1, 8, 2, Q("27.151184 mm")),
    Sketcher.Constraint("DistanceX", 2, 2, -1, 1, Q("53.173509 mm")),
    Sketcher.Constraint("DistanceY", 6, 2, -1, 1, Q("22.66348 mm")),
    Sketcher.Constraint("DistanceX", -1, 1, 7, 2, Q("220.205981 mm")),
    Sketcher.Constraint("DistanceY", 4, 2, 8, 2, Q("22.94526 mm")),
])
pocket1 = body.newObject("PartDesign::Pocket", "Pocket")
pocket1.Profile = sketch11
pocket1.Type = "ThroughAll"

# Sketch on XY plane
sketch12 = body.newObject("Sketcher::SketchObject", "Sketch011")
sketch12.AttachmentSupport = (doc.getObject("XY_Plane"), [""])
sketch12.MapMode = "FlatFace"
sketch12.AttachmentOffset = App.Placement(App.Vector(0, 0, -61.017223), App.Rotation())
sketch12.addGeometry([
    Part.LineSegment(App.Vector(102, 10, 0), App.Vector(102, -2, 0)),
    Part.LineSegment(App.Vector(102, -2, 0), App.Vector(69, -2, 0)),
    Part.LineSegment(App.Vector(69, -2, 0), App.Vector(69, 10, 0)),
    Part.LineSegment(App.Vector(69, 10, 0), App.Vector(102, 10, 0)),
], False)
sketch12.addConstraint([
    Sketcher.Constraint("Coincident", 0, 2, 1, 1),
    Sketcher.Constraint("Coincident", 1, 2, 2, 1),
    Sketcher.Constraint("Coincident", 2, 2, 3, 1),
    Sketcher.Constraint("Coincident", 3, 2, 0, 1),
    Sketcher.Constraint("Vertical", 0),
    Sketcher.Constraint("Horizontal", 1),
    Sketcher.Constraint("Vertical", 2),
    Sketcher.Constraint("Horizontal", 3),
    Sketcher.Constraint("DistanceY", 0, 2, 0, 1, Q("12.5 mm")),
    Sketcher.Constraint("DistanceY", -1, 1, 2, 2, Q("10 mm")),
    Sketcher.Constraint("DistanceX", 1, 2, 1, 1, Q("32.745139 mm")),
    Sketcher.Constraint("DistanceX", -1, 1, 0, 2, Q("102.0468 mm")),
])
pad11 = body.newObject("PartDesign::Pad", "Pad010")
pad11.Profile = sketch12
pad11.Length = 10
pad11.Reversed = True

# Sketch on XZ plane
sketch13 = body.newObject("Sketcher::SketchObject", "Sketch012")
sketch13.AttachmentSupport = (doc.getObject("XZ_Plane"), [""])
sketch13.MapMode = "FlatFace"
sketch13.AttachmentOffset = App.Placement(App.Vector(0, 0, -10), App.Rotation())
sketch13.addGeometry(Part.Circle(App.Vector(85.7, -66, 0), App.Vector(0, 0, 1), 2.5), False)
sketch13.addConstraint([
    Sketcher.Constraint("Diameter", 0, Q("5 mm")),
    Sketcher.Constraint("DistanceX", -1, 1, 0, 3, Q("85.67423 mm")),
    Sketcher.Constraint("DistanceY", 0, 3, -1, 1, Q("66.017223 mm")),
])
pad12 = body.newObject("PartDesign::Pad", "Pad011")
pad12.Profile = sketch13
pad12.Length = 50
pad12.Reversed = True

# Sketch on XZ plane
sketch14 = body.newObject("Sketcher::SketchObject", "Sketch013")
sketch14.AttachmentSupport = (doc.getObject("XZ_Plane"), [""])
sketch14.MapMode = "FlatFace"
sketch14.AttachmentOffset = App.Placement(App.Vector(0, 0, -35), App.Rotation())
sketch14.addGeometry([
    Part.ArcOfCircle(Part.Circle(App.Vector(85.7, -66, 0), App.Vector(0, 0, 1), 2.5), math.radians(66), math.radians(114)),
    Part.LineSegment(App.Vector(86.7, -63.7, 0), App.Vector(86.7, -96, 0)),
    Part.LineSegment(App.Vector(86.7, -96, 0), App.Vector(84.7, -96, 0)),
    Part.LineSegment(App.Vector(84.7, -96, 0), App.Vector(84.7, -63.7, 0)),
], False)
sketch14.addConstraint([
    Sketcher.Constraint("Coincident", 0, 1, 1, 1),
    Sketcher.Constraint("Coincident", 1, 2, 2, 1),
    Sketcher.Constraint("Coincident", 2, 2, 3, 1),
    Sketcher.Constraint("Coincident", 3, 2, 0, 2),
    Sketcher.Constraint("Vertical", 1),
    Sketcher.Constraint("Horizontal", 2),
    Sketcher.Constraint("Vertical", 3),
    Sketcher.Constraint("Horizontal", 0, 1, 3, 2),
    Sketcher.Constraint("Radius", 0, Q("2.5 mm")),
    Sketcher.Constraint("DistanceX", 2, 2, 2, 1, Q("2 mm")),
    Sketcher.Constraint("DistanceY", 1, 2, 0, 3, Q("30 mm")),
    Sketcher.Constraint("DistanceX", -1, 1, 0, 3, Q("85.67423 mm")),
    Sketcher.Constraint("DistanceY", 0, 3, -1, 1, Q("66.017223 mm")),
])
pad13 = body.newObject("PartDesign::Pad", "Pad012")
pad13.Profile = sketch14
pad13.Length = 25
pad13.Reversed = True

# Sketch on YZ plane
sketch15 = body.newObject("Sketcher::SketchObject", "Sketch014")
sketch15.AttachmentSupport = (doc.getObject("YZ_Plane"), [""])
sketch15.MapMode = "FlatFace"
sketch15.AttachmentOffset = App.Placement(App.Vector(0, 0, 86.67423), App.Rotation())
sketch15.addGeometry([
    Part.LineSegment(App.Vector(58, -87, 0), App.Vector(47, -74, 0)),  # 0
    Part.LineSegment(App.Vector(47, -74, 0), App.Vector(47, -84, 0)),  # 1
    Part.LineSegment(App.Vector(47, -84, 0), App.Vector(36, -74, 0)),  # 2
    Part.LineSegment(App.Vector(36, -74, 0), App.Vector(49, -91, 0)),  # 3
    Part.LineSegment(App.Vector(49, -91, 0), App.Vector(50, -80, 0)),  # 4
    Part.LineSegment(App.Vector(50, -80, 0), App.Vector(58, -87, 0)),  # 5
], False)
sketch15.addConstraint([
    Sketcher.Constraint("Coincident", 0, 2, 1, 1),
    Sketcher.Constraint("Coincident", 1, 2, 2, 1),
    Sketcher.Constraint("Coincident", 2, 2, 3, 1),
    Sketcher.Constraint("Coincident", 3, 2, 4, 1),
    Sketcher.Constraint("Coincident", 4, 2, 5, 1),
    Sketcher.Constraint("Coincident", 5, 2, 0, 1),
    Sketcher.Constraint("Vertical", 1),
    Sketcher.Constraint("DistanceX", -1, 1, 5, 2, Q("57.949199 mm")),
    Sketcher.Constraint("DistanceY", 1, 2, 1, 1, Q("10.098458 mm")),
    Sketcher.Constraint("DistanceX", -1, 1, 0, 2, Q("47.27461 mm")),
    Sketcher.Constraint("DistanceY", 3, 2, -1, 1, Q("91.143359 mm")),
    Sketcher.Constraint("DistanceX", -1, 1, 4, 2, Q("49.909079 mm")),
    Sketcher.Constraint("DistanceY", 0, 2, 2, 2, Q("0.158791 mm")),
    Sketcher.Constraint("DistanceY", 4, 2, 0, 2, Q("5.656231 mm")),
    Sketcher.Constraint("DistanceY", 5, 2, 1, 2, Q("2.12714 mm")),
    Sketcher.Constraint("Distance", 2, Q("15.064474 mm")),
    Sketcher.Constraint("Distance", 3, Q("21.244898 mm")),
    Sketcher.Constraint("Distance", 4, Q("11.154527 mm")),
])
pad14 = body.newObject("PartDesign::Pad", "Pad013")
pad14.Profile = sketch15
pad14.Length = 2.5

# Sketch on YZ plane
sketch16 = body.newObject("Sketcher::SketchObject", "Sketch015")
sketch16.AttachmentSupport = (doc.getObject("YZ_Plane"), [""])
sketch16.MapMode = "FlatFace"
sketch16.AttachmentOffset = App.Placement(App.Vector(0, 0, 84.67423), App.Rotation())
sketch16.addGeometry([
    Part.LineSegment(App.Vector(54, -89, 0), App.Vector(49, -89, 0)),  # 0
    Part.LineSegment(App.Vector(49, -89, 0), App.Vector(46, -83, 0)),  # 1
    Part.LineSegment(App.Vector(46, -83, 0), App.Vector(41, -83, 0)),  # 2
    Part.LineSegment(App.Vector(41, -83, 0), App.Vector(46, -89, 0)),  # 3
    Part.LineSegment(App.Vector(46, -89, 0), App.Vector(41, -89, 0)),  # 4
    Part.LineSegment(App.Vector(41, -89, 0), App.Vector(37, -83, 0)),  # 5
    Part.LineSegment(App.Vector(37, -83, 0), App.Vector(41, -77, 0)),  # 6
    Part.LineSegment(App.Vector(41, -77, 0), App.Vector(46, -77, 0)),  # 7
    Part.LineSegment(App.Vector(46, -77, 0), App.Vector(49, -83, 0)),  # 8
    Part.LineSegment(App.Vector(49, -83, 0), App.Vector(54, -83, 0)),  # 9
    Part.LineSegment(App.Vector(54, -83, 0), App.Vector(49, -77, 0)),  # 10
    Part.LineSegment(App.Vector(49, -77, 0), App.Vector(54, -77, 0)),  # 11
    Part.LineSegment(App.Vector(54, -77, 0), App.Vector(59, -83, 0)),  # 12
    Part.LineSegment(App.Vector(59, -83, 0), App.Vector(54, -89, 0)),  # 13
], False)
sketch16.addConstraint([
    Sketcher.Constraint("Coincident", 0, 2, 1, 1),
    Sketcher.Constraint("Coincident", 1, 2, 2, 1),
    Sketcher.Constraint("Coincident", 2, 2, 3, 1),
    Sketcher.Constraint("Coincident", 3, 2, 4, 1),
    Sketcher.Constraint("Coincident", 4, 2, 5, 1),
    Sketcher.Constraint("Coincident", 5, 2, 6, 1),
    Sketcher.Constraint("Coincident", 6, 2, 7, 1),
    Sketcher.Constraint("Coincident", 7, 2, 8, 1),
    Sketcher.Constraint("Coincident", 8, 2, 9, 1),
    Sketcher.Constraint("Coincident", 9, 2, 10, 1),
    Sketcher.Constraint("Coincident", 10, 2, 11, 1),
    Sketcher.Constraint("Coincident", 11, 2, 12, 1),
    Sketcher.Constraint("Coincident", 12, 2, 13, 1),
    Sketcher.Constraint("Coincident", 13, 2, 0, 1),
    Sketcher.Constraint("Horizontal", 0),
    Sketcher.Constraint("Horizontal", 2),
    Sketcher.Constraint("Horizontal", 4),
    Sketcher.Constraint("Horizontal", 7),
    Sketcher.Constraint("Horizontal", 9),
    Sketcher.Constraint("Horizontal", 11),
    Sketcher.Constraint("Parallel", 5, 10),
    Sketcher.Constraint("Horizontal", 0, 2, 3, 2),
    Sketcher.Constraint("Horizontal", 2, 2, 8, 2),
    Sketcher.Constraint("Horizontal", 7, 2, 10, 2),
    Sketcher.Constraint("Horizontal", 9, 2, 12, 2),
    Sketcher.Constraint("Vertical", 1, 2, 3, 2),
    Sketcher.Constraint("Vertical", 2, 2, 4, 2),
    Sketcher.Constraint("Vertical", 4, 2, 6, 2),
    Sketcher.Constraint("Vertical", 3, 2, 7, 2),
    Sketcher.Constraint("Vertical", 0, 2, 8, 2),
    Sketcher.Constraint("Vertical", 8, 2, 10, 2),
    Sketcher.Constraint("Vertical", 9, 2, 11, 2),
    Sketcher.Constraint("Vertical", 11, 2, 13, 2),
    Sketcher.Constraint("Equal", 0, 2),
    Sketcher.Constraint("DistanceX", 0, 2, 0, 1, Q("5 mm")),
    Sketcher.Constraint("Distance", 1, Q("6.48832 mm")),
    Sketcher.Constraint("Distance", 3, Q("7.52498 mm")),
    Sketcher.Constraint("Distance", 8, Q("6.99315 mm")),
    Sketcher.Constraint("Distance", 12, Q("7.646322 mm")),
    Sketcher.Constraint("DistanceX", -1, 1, 12, 2, Q("58.95672 mm")),
    Sketcher.Constraint("DistanceY", 5, 2, 2, 2, Q("0.11233 mm")),
    Sketcher.Constraint("DistanceY", 0, 2, -1, 1, Q("88.831415 mm")),
])
pad15 = body.newObject("PartDesign::Pad", "Pad014")
pad15.Profile = sketch16
pad15.Length = 2.5
pad15.Reversed = True

doc.recompute()
